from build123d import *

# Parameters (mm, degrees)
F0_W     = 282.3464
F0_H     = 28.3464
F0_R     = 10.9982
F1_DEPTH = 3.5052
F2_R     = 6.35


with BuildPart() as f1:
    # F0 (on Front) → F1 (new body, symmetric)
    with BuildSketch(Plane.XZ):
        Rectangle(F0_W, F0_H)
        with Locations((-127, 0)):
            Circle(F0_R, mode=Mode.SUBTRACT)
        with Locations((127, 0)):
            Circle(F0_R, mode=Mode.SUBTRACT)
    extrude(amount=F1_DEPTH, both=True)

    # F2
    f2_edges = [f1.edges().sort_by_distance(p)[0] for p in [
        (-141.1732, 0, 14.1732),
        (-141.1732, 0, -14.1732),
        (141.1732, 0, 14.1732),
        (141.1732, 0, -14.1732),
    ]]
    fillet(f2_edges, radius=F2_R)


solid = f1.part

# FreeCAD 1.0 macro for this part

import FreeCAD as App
import Part
import Sketcher
Q = App.Units.Quantity


def edges_at(feature, points):
    """Names of the edges that pass closest to the given points."""
    edges = feature.Shape.Edges
    near = lambda p: min(range(len(edges)), key=lambda i: edges[i].distToShape(Part.Vertex(*p))[0])
    return sorted({f"Edge{near(p) + 1}" for p in points})


def add_polygon(sketch, points):
    """Adds a closed chain of lines whose ends are joined by coincident constraints."""
    first, n = sketch.GeometryCount, len(points)
    for a, b in zip(points, points[1:] + points[:1]):
        sketch.addGeometry(Part.LineSegment(App.Vector(*a, 0), App.Vector(*b, 0)), False)
    for i in range(n):
        sketch.addConstraint(Sketcher.Constraint("Coincident", first + i, 2, first + (i + 1) % n, 1))

doc = App.newDocument("Part")
body = doc.addObject("PartDesign::Body", "Body")

# Sketch on XZ plane
sketch1 = body.newObject("Sketcher::SketchObject", "Sketch")
sketch1.AttachmentSupport = (doc.getObject("XZ_Plane"), [""])
sketch1.MapMode = "FlatFace"
add_polygon(sketch1, [(-141.1732, 14.1732), (-141.1732, -14.1732), (141.1732, -14.1732), (141.1732, 14.1732)])  # lines 0-3
sketch1.addGeometry(Part.Circle(App.Vector(-127, 0, 0), App.Vector(0, 0, 1), 10.9982), False)  # 4
sketch1.addGeometry(Part.Circle(App.Vector(127, 0, 0), App.Vector(0, 0, 1), 10.9982), False)  # 5
sketch1.addConstraint(Sketcher.Constraint("Vertical", 0))
sketch1.addConstraint(Sketcher.Constraint("Horizontal", 1))
sketch1.addConstraint(Sketcher.Constraint("Vertical", 2))
sketch1.addConstraint(Sketcher.Constraint("Horizontal", 3))
sketch1.addConstraint(Sketcher.Constraint("Equal", 4, 5))
sketch1.addConstraint(Sketcher.Constraint("Symmetric", 4, 3, 5, 3, -1, 1))
sketch1.addConstraint(Sketcher.Constraint("Symmetric", 0, 2, 2, 2, -1, 1))
sketch1.addConstraint(Sketcher.Constraint("PointOnObject", 4, 3, -1))
sketch1.addConstraint(Sketcher.Constraint("Diameter", 4, Q("0.866 in")))
sketch1.addConstraint(Sketcher.Constraint("DistanceX", 4, 3, -1, 1, Q("5 in")))
sketch1.addConstraint(Sketcher.Constraint("DistanceX", 1, 1, 1, 2, Q("11.116 in")))
sketch1.addConstraint(Sketcher.Constraint("DistanceY", 0, 2, 0, 1, Q("1.116 in")))
pad1 = body.newObject("PartDesign::Pad", "Pad")
pad1.Profile = sketch1
pad1.Length = Q("0.276 in")
pad1.Midplane = True
doc.recompute()

fillet = body.newObject("PartDesign::Fillet", "Fillet")
fillet.Base = (pad1, edges_at(pad1, [
    (-141.173, 0, 14.173),
    (-141.173, 0, -14.173),
    (141.173, 0, 14.173),
    (141.173, 0, -14.173),
]))
fillet.Radius = Q("0.25 in")

doc.recompute()
